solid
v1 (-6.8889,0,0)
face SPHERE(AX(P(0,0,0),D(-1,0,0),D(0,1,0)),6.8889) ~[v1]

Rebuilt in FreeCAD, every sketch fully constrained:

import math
import FreeCAD as App
import Part
import Sketcher

doc = App.newDocument("Part")
body = doc.addObject("PartDesign::Body", "Body")

# Sketch on XY plane
sketch1 = doc.addObject("Sketcher::SketchObject", "Sketch")
body.addObject(sketch1)
sketch1.AttachmentSupport = (doc.XY_Plane, [""])
sketch1.MapMode = "FlatFace"
sketch1.addGeometry([
    Part.LineSegment(App.Vector(-7, 0, 0), App.Vector(7, 0, 0)),
    Part.ArcOfCircle(Part.Circle(App.Vector(0, 0, 0), App.Vector(0, 0, 1), 7), math.radians(0), math.radians(180)),
], False)
sketch1.addConstraint([
    Sketcher.Constraint("Coincident", 0, 1, 1, 2),
    Sketcher.Constraint("Coincident", 1, 1, 0, 2),
    Sketcher.Constraint("Horizontal", 0),
    Sketcher.Constraint("Coincident", 1, 3, -1, 1),
    Sketcher.Constraint("PointOnObject", 0, 1, -1),
    Sketcher.Constraint("Radius", 1, 6.889),
])
revolution = doc.addObject("PartDesign::Revolution", "Revolution")
body.addObject(revolution)
revolution.Profile = sketch1
revolution.ReferenceAxis = (sketch1, ["H_Axis"])
revolution.Angle = 360

doc.recompute()
